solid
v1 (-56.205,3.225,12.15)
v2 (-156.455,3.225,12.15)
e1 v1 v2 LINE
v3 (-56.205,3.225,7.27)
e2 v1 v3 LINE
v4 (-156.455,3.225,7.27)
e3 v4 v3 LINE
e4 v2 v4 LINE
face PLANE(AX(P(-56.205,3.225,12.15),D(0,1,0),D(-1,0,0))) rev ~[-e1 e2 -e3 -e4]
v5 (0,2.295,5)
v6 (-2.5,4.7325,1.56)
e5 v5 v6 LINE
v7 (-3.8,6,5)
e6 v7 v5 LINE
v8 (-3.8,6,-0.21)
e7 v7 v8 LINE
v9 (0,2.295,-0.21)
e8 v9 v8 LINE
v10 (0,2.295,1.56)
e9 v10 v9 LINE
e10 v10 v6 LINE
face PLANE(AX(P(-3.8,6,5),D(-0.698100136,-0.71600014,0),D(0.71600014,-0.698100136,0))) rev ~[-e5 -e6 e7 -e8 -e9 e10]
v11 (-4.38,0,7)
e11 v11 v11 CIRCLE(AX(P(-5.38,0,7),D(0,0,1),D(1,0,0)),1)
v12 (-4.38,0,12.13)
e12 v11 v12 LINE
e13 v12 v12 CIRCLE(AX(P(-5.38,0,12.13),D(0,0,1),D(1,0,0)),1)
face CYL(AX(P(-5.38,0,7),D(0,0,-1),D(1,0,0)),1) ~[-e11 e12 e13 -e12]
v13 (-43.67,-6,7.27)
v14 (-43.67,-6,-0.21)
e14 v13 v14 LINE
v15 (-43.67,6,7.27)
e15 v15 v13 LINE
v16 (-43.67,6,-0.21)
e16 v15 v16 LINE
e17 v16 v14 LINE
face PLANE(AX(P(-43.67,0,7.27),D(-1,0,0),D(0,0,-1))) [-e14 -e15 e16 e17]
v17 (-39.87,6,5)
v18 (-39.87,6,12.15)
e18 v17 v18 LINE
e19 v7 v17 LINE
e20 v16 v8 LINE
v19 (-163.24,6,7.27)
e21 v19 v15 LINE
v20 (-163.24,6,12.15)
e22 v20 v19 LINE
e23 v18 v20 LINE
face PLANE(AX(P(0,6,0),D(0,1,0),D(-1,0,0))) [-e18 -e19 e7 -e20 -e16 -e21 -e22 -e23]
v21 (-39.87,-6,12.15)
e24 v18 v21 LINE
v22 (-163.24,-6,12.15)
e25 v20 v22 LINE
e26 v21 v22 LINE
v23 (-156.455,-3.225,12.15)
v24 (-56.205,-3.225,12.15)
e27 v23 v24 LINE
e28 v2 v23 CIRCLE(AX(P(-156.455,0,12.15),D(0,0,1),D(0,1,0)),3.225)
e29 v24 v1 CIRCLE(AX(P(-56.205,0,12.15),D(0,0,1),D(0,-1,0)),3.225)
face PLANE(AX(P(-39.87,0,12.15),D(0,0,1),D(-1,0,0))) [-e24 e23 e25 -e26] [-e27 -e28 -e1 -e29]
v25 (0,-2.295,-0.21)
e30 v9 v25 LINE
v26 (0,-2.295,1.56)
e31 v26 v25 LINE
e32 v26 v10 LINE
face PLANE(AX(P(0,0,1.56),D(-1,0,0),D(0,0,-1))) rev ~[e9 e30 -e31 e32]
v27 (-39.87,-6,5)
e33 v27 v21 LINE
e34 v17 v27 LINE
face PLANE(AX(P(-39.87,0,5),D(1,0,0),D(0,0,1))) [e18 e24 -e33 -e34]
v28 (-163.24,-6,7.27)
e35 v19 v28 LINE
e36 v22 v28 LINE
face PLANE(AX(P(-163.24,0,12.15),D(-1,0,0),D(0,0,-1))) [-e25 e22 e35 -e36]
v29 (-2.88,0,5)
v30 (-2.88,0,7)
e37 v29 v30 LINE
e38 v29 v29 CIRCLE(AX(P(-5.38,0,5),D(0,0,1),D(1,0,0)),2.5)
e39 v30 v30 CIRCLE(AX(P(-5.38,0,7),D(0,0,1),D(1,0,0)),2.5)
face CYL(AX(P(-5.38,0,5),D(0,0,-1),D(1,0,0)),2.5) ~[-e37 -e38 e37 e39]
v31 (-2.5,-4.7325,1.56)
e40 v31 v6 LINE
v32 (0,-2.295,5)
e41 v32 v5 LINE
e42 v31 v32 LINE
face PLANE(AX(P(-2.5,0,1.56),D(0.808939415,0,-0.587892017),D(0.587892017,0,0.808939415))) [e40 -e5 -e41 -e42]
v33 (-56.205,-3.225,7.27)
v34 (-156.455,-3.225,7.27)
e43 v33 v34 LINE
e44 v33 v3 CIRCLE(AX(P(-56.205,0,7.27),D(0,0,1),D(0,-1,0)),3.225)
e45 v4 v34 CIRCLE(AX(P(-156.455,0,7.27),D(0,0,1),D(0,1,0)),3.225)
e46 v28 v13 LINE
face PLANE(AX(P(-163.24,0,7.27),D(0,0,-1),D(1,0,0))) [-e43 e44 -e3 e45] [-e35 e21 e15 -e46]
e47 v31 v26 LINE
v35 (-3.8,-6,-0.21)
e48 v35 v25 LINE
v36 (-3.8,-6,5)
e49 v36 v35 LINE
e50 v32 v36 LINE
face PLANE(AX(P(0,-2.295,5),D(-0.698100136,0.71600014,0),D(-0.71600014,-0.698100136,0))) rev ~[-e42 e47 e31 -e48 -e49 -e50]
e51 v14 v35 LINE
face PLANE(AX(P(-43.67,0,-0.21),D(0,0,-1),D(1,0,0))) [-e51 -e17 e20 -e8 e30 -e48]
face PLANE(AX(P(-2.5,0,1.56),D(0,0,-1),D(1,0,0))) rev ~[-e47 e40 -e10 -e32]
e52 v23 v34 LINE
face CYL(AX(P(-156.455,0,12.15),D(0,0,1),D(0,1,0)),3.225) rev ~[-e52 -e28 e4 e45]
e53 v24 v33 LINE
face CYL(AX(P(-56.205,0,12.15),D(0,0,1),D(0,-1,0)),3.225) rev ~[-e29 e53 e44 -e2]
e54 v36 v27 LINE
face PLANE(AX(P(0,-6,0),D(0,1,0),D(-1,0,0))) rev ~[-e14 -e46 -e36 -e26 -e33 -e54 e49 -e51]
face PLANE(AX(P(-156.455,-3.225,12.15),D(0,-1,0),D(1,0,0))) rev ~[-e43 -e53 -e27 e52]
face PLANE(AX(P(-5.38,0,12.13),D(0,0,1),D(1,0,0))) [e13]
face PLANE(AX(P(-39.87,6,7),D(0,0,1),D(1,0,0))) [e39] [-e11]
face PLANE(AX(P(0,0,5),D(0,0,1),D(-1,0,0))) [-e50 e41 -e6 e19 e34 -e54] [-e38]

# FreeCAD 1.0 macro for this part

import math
import FreeCAD as App
import Part
import Sketcher
Q = App.Units.Quantity

doc = App.newDocument("Part")
body = doc.addObject("PartDesign::Body", "Body")

# Sketch on XZ plane
sketch1 = body.newObject("Sketcher::SketchObject", "Sketch")
sketch1.AttachmentSupport = (doc.getObject("XZ_Plane"), [""])
sketch1.MapMode = "FlatFace"
sketch1.addGeometry([
    Part.LineSegment(App.Vector(-39.9, 5, 0), App.Vector(0, 5, 0)),  # 0
    Part.LineSegment(App.Vector(0, 5, 0), App.Vector(-2.5, 1.6, 0)),  # 1
    Part.LineSegment(App.Vector(-2.5, 1.6, 0), App.Vector(0, 1.6, 0)),  # 2
    Part.LineSegment(App.Vector(0, 1.6, 0), App.Vector(0, -0.2, 0)),  # 3
    Part.LineSegment(App.Vector(0, -0.2, 0), App.Vector(-43.7, -0.2, 0)),  # 4
    Part.LineSegment(App.Vector(-43.7, -0.2, 0), App.Vector(-43.7, 7.3, 0)),  # 5
    Part.LineSegment(App.Vector(-43.7, 7.3, 0), App.Vector(-163.2, 7.3, 0)),  # 6
    Part.LineSegment(App.Vector(-163.2, 7.3, 0), App.Vector(-163.2, 12.2, 0)),  # 7
    Part.LineSegment(App.Vector(-163.2, 12.2, 0), App.Vector(-39.9, 12.2, 0)),  # 8
    Part.LineSegment(App.Vector(-39.9, 12.2, 0), App.Vector(-39.9, 5, 0)),  # 9
], False)
sketch1.addConstraint([
    Sketcher.Constraint("Coincident", 0, 2, 1, 1),
    Sketcher.Constraint("Coincident", 1, 2, 2, 1),
    Sketcher.Constraint("Coincident", 2, 2, 3, 1),
    Sketcher.Constraint("Coincident", 3, 2, 4, 1),
    Sketcher.Constraint("Coincident", 4, 2, 5, 1),
    Sketcher.Constraint("Coincident", 5, 2, 6, 1),
    Sketcher.Constraint("Coincident", 6, 2, 7, 1),
    Sketcher.Constraint("Coincident", 7, 2, 8, 1),
    Sketcher.Constraint("Coincident", 8, 2, 9, 1),
    Sketcher.Constraint("Coincident", 9, 2, 0, 1),
    Sketcher.Constraint("Horizontal", 0),
    Sketcher.Constraint("Horizontal", 2),
    Sketcher.Constraint("Vertical", 3),
    Sketcher.Constraint("Horizontal", 4),
    Sketcher.Constraint("Vertical", 5),
    Sketcher.Constraint("Horizontal", 6),
    Sketcher.Constraint("Vertical", 7),
    Sketcher.Constraint("Horizontal", 8),
    Sketcher.Constraint("Vertical", 9),
    Sketcher.Constraint("PointOnObject", 0, 2, -2),
    Sketcher.Constraint("PointOnObject", 2, 2, -2),
    Sketcher.Constraint("DistanceX", 2, 1, 2, 2, Q("2.5 mm")),
    Sketcher.Constraint("DistanceX", 0, 1, 0, 2, Q("39.87 mm")),
    Sketcher.Constraint("DistanceX", 6, 2, 6, 1, Q("119.57 mm")),
    Sketcher.Constraint("DistanceX", 8, 1, 8, 2, Q("123.37 mm")),
    Sketcher.Constraint("DistanceY", 5, 1, 5, 2, Q("7.48 mm")),
    Sketcher.Constraint("DistanceY", 7, 1, 7, 2, Q("4.88 mm")),
    Sketcher.Constraint("DistanceY", 9, 2, 9, 1, Q("7.15 mm")),
    Sketcher.Constraint("DistanceY", 1, 2, 0, 2, Q("3.44 mm")),
    Sketcher.Constraint("DistanceY", -1, 1, 0, 2, Q("5 mm")),
])
pad1 = body.newObject("PartDesign::Pad", "Pad")
pad1.Profile = sketch1
pad1.Length = 12
pad1.Midplane = True

# Sketch on XY plane
sketch2 = body.newObject("Sketcher::SketchObject", "Sketch001")
sketch2.AttachmentSupport = (doc.getObject("XY_Plane"), [""])
sketch2.MapMode = "FlatFace"
sketch2.AttachmentOffset = App.Placement(App.Vector(0, 0, 12.15), App.Rotation())
sketch2.addGeometry([
    Part.ArcOfCircle(Part.Circle(App.Vector(-156.5, 0, 0), App.Vector(0, 0, 1), 3.2), math.radians(90), math.radians(270)),
    Part.LineSegment(App.Vector(-156.5, -3.2, 0), App.Vector(-56.2, -3.2, 0)),
    Part.ArcOfCircle(Part.Circle(App.Vector(-56.2, 0, 0), App.Vector(0, 0, 1), 3.2), math.radians(-90), math.radians(90)),
    Part.LineSegment(App.Vector(-56.2, 3.2, 0), App.Vector(-156.5, 3.2, 0)),
], False)
sketch2.addConstraint([
    Sketcher.Constraint("Tangent", 0, 2, 1, 1),
    Sketcher.Constraint("Tangent", 1, 2, 2, 1),
    Sketcher.Constraint("Tangent", 2, 2, 3, 1),
    Sketcher.Constraint("Tangent", 3, 2, 0, 1),
    Sketcher.Constraint("Horizontal", 1),
    Sketcher.Constraint("Horizontal", 3),
    Sketcher.Constraint("PointOnObject", 0, 3, -1),
    Sketcher.Constraint("Radius", 0, Q("3.225 mm")),
    Sketcher.Constraint("DistanceX", 1, 1, 1, 2, Q("100.25 mm")),
    Sketcher.Constraint("DistanceX", 0, 3, -1, 1, Q("156.455 mm")),
])
pocket1 = body.newObject("PartDesign::Pocket", "Pocket")
pocket1.Profile = sketch2
pocket1.Length = 12

# Sketch on XY plane
sketch3 = body.newObject("Sketcher::SketchObject", "Sketch002")
sketch3.AttachmentSupport = (doc.getObject("XY_Plane"), [""])
sketch3.MapMode = "FlatFace"
sketch3.AttachmentOffset = App.Placement(App.Vector(0, 0, 5), App.Rotation())
sketch3.addGeometry([
    Part.LineSegment(App.Vector(0, -6, 0), App.Vector(0, -2.3, 0)),  # 0
    Part.LineSegment(App.Vector(0, -2.3, 0), App.Vector(-3.8, -6, 0)),  # 1
    Part.LineSegment(App.Vector(-3.8, -6, 0), App.Vector(0, -6, 0)),  # 2
    Part.LineSegment(App.Vector(0, 6, 0), App.Vector(-3.8, 6, 0)),  # 3
    Part.LineSegment(App.Vector(-3.8, 6, 0), App.Vector(0, 2.3, 0)),  # 4
    Part.LineSegment(App.Vector(0, 2.3, 0), App.Vector(0, 6, 0)),  # 5
], False)
sketch3.addConstraint([
    Sketcher.Constraint("Coincident", 0, 2, 1, 1),
    Sketcher.Constraint("Coincident", 1, 2, 2, 1),
    Sketcher.Constraint("Coincident", 2, 2, 0, 1),
    Sketcher.Constraint("Coincident", 3, 2, 4, 1),
    Sketcher.Constraint("Coincident", 4, 2, 5, 1),
    Sketcher.Constraint("Coincident", 5, 2, 3, 1),
    Sketcher.Constraint("Vertical", 0),
    Sketcher.Constraint("Horizontal", 2),
    Sketcher.Constraint("Horizontal", 3),
    Sketcher.Constraint("Vertical", 5),
    Sketcher.Constraint("Symmetric", 0, 2, 4, 2, -1, 1),
    Sketcher.Constraint("Symmetric", 1, 2, 3, 2, -1),
    Sketcher.Constraint("PointOnObject", 0, 2, -2),
    Sketcher.Constraint("DistanceX", 2, 1, 2, 2, Q("3.8 mm")),
    Sketcher.Constraint("DistanceY", 0, 2, -1, 1, Q("2.295 mm")),
    Sketcher.Constraint("DistanceY", 1, 2, -1, 1, Q("6 mm")),
])
pocket2 = body.newObject("PartDesign::Pocket", "Pocket001")
pocket2.Profile = sketch3
pocket2.Length = 12

# Sketch on XY plane
sketch4 = body.newObject("Sketcher::SketchObject", "Sketch003")
sketch4.AttachmentSupport = (doc.getObject("XY_Plane"), [""])
sketch4.MapMode = "FlatFace"
sketch4.AttachmentOffset = App.Placement(App.Vector(0, 0, 5), App.Rotation())
sketch4.addGeometry(Part.Circle(App.Vector(-5.4, 0, 0), App.Vector(0, 0, 1), 2.5), False)
sketch4.addConstraint([
    Sketcher.Constraint("PointOnObject", 0, 3, -1),
    Sketcher.Constraint("Diameter", 0, Q("5 mm")),
    Sketcher.Constraint("DistanceX", 0, 3, -1, 1, Q("5.38 mm")),
])
pad2 = body.newObject("PartDesign::Pad", "Pad001")
pad2.Profile = sketch4
pad2.Length = 2

# Sketch on XY plane
sketch5 = body.newObject("Sketcher::SketchObject", "Sketch004")
sketch5.AttachmentSupport = (doc.getObject("XY_Plane"), [""])
sketch5.MapMode = "FlatFace"
sketch5.AttachmentOffset = App.Placement(App.Vector(0, 0, 7), App.Rotation())
sketch5.addGeometry(Part.Circle(App.Vector(-5.4, 0, 0), App.Vector(0, 0, 1), 1), False)
sketch5.addConstraint([
    Sketcher.Constraint("PointOnObject", 0, 3, -1),
    Sketcher.Constraint("Diameter", 0, Q("2 mm")),
    Sketcher.Constraint("DistanceX", 0, 3, -1, 1, Q("5.38 mm")),
])
pad3 = body.newObject("PartDesign::Pad", "Pad002")
pad3.Profile = sketch5
pad3.Length = 5.13

doc.recompute()
